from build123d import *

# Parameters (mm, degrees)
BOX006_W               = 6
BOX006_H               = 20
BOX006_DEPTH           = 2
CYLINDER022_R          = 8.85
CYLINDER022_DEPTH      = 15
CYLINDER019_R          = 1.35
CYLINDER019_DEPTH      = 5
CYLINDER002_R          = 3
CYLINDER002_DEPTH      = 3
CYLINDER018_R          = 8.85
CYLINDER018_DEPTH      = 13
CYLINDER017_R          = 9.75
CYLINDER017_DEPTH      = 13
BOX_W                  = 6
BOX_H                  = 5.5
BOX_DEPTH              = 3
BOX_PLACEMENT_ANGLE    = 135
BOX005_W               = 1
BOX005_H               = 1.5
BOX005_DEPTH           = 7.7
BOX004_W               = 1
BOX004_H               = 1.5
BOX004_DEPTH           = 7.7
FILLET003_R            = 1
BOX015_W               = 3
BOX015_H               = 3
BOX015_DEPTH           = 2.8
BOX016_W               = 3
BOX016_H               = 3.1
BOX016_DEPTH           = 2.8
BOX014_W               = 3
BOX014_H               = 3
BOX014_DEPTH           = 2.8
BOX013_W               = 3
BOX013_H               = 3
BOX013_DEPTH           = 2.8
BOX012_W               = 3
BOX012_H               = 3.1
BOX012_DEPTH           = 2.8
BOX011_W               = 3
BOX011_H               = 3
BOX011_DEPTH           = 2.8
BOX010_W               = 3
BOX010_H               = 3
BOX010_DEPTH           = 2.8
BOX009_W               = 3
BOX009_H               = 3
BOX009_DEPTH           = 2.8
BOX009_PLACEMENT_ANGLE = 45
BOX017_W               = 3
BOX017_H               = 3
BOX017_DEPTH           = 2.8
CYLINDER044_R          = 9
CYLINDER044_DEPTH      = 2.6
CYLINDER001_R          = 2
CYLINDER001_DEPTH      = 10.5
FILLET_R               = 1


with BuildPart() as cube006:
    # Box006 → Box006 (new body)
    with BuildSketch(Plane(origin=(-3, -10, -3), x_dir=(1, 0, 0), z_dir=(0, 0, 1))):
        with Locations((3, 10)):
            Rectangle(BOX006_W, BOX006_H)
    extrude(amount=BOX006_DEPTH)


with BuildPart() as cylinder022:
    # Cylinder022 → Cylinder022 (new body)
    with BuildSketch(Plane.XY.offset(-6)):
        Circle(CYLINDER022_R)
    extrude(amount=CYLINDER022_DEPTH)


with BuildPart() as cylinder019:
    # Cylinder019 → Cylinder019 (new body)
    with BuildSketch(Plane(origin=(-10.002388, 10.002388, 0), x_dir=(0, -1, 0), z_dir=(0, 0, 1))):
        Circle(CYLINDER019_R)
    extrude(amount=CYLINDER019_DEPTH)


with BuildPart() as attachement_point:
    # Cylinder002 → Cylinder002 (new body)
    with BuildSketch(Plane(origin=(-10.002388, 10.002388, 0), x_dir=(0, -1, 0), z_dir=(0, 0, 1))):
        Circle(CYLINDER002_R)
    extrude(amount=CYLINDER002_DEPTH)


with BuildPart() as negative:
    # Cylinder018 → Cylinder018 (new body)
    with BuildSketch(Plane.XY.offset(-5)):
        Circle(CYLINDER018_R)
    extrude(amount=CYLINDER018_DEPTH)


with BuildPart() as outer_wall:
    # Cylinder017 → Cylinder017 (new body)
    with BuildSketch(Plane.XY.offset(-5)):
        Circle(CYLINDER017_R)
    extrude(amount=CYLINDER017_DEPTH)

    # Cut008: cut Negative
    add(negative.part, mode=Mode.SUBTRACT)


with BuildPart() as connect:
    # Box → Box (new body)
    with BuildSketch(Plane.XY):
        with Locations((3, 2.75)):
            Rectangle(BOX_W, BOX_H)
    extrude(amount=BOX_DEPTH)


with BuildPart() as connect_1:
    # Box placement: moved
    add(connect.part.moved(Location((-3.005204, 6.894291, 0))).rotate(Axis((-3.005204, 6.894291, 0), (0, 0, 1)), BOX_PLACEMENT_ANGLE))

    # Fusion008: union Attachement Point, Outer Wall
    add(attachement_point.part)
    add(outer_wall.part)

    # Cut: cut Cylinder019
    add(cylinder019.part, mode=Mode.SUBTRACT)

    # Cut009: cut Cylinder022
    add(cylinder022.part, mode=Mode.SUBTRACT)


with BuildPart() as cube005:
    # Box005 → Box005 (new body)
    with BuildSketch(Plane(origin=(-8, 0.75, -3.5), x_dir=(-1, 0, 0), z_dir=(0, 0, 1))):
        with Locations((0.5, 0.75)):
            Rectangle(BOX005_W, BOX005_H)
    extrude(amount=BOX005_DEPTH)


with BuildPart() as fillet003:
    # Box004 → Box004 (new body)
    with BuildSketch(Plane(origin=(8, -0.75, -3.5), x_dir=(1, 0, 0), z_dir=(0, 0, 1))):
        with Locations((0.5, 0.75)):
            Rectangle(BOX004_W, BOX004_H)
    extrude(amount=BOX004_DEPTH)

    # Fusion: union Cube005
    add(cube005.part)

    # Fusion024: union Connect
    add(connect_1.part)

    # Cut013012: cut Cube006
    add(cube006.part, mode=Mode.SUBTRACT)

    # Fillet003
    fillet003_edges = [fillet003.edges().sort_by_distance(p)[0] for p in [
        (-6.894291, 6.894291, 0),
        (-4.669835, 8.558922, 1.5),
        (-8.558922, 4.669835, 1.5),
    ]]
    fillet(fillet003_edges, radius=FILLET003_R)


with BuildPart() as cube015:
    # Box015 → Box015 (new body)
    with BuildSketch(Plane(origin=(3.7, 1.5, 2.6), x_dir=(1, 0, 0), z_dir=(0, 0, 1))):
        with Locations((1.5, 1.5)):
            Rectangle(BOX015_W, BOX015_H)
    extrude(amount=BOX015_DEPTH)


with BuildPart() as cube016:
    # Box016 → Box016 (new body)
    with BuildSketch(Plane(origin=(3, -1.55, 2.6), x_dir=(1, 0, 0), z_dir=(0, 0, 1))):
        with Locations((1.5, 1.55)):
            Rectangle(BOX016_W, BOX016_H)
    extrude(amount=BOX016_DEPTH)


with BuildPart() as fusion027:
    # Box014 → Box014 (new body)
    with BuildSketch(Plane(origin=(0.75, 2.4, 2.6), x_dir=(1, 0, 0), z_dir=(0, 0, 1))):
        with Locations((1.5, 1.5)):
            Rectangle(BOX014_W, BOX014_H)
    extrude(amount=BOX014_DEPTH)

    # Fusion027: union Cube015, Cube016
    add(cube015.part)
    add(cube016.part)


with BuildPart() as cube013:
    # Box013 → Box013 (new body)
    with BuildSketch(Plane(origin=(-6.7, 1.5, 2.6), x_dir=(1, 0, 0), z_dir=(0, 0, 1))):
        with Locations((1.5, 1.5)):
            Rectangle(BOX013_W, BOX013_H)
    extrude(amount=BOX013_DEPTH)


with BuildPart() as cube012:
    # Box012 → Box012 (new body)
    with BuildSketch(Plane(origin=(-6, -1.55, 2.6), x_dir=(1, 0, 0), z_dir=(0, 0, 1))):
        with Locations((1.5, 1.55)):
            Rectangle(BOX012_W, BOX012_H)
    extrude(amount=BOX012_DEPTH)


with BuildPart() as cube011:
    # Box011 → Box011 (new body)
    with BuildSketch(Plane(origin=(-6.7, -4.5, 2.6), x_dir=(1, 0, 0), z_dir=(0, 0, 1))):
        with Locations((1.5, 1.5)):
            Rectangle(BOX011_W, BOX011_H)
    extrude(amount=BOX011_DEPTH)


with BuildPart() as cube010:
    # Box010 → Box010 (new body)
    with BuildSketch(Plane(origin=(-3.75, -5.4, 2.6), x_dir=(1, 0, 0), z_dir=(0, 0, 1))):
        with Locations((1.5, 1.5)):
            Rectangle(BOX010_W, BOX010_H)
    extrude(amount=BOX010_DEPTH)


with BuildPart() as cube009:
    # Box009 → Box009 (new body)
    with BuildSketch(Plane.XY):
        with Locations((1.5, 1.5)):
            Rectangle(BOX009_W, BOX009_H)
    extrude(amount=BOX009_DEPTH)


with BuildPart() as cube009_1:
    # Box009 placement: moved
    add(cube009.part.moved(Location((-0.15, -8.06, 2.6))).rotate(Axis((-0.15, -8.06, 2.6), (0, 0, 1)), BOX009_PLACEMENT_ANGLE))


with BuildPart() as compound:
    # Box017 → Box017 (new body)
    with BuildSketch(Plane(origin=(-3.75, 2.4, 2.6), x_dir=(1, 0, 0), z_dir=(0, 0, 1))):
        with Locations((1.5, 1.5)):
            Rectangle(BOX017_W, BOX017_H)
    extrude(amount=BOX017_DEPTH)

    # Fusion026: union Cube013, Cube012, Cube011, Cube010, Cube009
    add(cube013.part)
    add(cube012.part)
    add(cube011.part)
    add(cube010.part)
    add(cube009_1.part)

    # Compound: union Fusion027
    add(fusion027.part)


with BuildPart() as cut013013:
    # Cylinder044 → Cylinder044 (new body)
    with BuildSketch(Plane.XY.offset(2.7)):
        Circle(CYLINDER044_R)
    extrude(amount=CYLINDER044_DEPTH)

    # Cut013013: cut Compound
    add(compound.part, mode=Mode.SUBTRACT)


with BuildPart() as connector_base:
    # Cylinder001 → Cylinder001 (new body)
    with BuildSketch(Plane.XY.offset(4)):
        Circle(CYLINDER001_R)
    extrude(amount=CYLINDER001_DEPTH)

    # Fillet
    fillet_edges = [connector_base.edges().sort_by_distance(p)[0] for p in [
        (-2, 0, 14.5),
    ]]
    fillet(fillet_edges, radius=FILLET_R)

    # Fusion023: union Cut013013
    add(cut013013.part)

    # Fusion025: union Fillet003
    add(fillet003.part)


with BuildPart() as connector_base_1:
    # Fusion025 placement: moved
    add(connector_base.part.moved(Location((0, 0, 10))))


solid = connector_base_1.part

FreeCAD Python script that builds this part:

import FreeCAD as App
import Part
import Sketcher


def edges_at(feature, points):
    """Names of the edges that pass closest to the given points."""
    edges = feature.Shape.Edges
    near = lambda p: min(range(len(edges)), key=lambda i: edges[i].distToShape(Part.Vertex(*p))[0])
    return sorted({f"Edge{near(p) + 1}" for p in points})

doc = App.newDocument("Part")
body = doc.addObject("PartDesign::Body", "Body")

# Sketch on XY plane
sketch1 = body.newObject("Sketcher::SketchObject", "Sketch")
sketch1.AttachmentSupport = (doc.getObject("XY_Plane"), [""])
sketch1.MapMode = "FlatFace"
sketch1.AttachmentOffset = App.Placement(App.Vector(0, 0, -3), App.Rotation())
sketch1.addGeometry([
    Part.LineSegment(App.Vector(-3, 10, 0), App.Vector(-3, -10, 0)),
    Part.LineSegment(App.Vector(-3, -10, 0), App.Vector(3, -10, 0)),
    Part.LineSegment(App.Vector(3, -10, 0), App.Vector(3, 10, 0)),
    Part.LineSegment(App.Vector(3, 10, 0), App.Vector(-3, 10, 0)),
], False)
sketch1.addConstraint([
    Sketcher.Constraint("Coincident", 0, 2, 1, 1),
    Sketcher.Constraint("Coincident", 1, 2, 2, 1),
    Sketcher.Constraint("Coincident", 2, 2, 3, 1),
    Sketcher.Constraint("Coincident", 3, 2, 0, 1),
    Sketcher.Constraint("Vertical", 0),
    Sketcher.Constraint("Horizontal", 1),
    Sketcher.Constraint("Vertical", 2),
    Sketcher.Constraint("Horizontal", 3),
    Sketcher.Constraint("Symmetric", 0, 2, 2, 2, -1, 1),
    Sketcher.Constraint("DistanceX", 1, 1, 1, 2, 6.0),
    Sketcher.Constraint("DistanceY", 0, 2, 0, 1, 20.0),
])
pad1 = body.newObject("PartDesign::Pad", "Pad")
pad1.Profile = sketch1
pad1.Length = 2
body2 = doc.addObject("PartDesign::Body", "Body001")

# Sketch on XY plane
sketch2 = body2.newObject("Sketcher::SketchObject", "Sketch001")
sketch2.AttachmentSupport = (doc.getObject("XY_Plane001"), [""])
sketch2.MapMode = "FlatFace"
sketch2.AttachmentOffset = App.Placement(App.Vector(0, 0, -6), App.Rotation())
sketch2.addGeometry(Part.Circle(App.Vector(0, 0, 0), App.Vector(0, 0, 1), 9), False)
sketch2.addConstraint([
    Sketcher.Constraint("Coincident", 0, 3, -1, 1),
    Sketcher.Constraint("Diameter", 0, 17.7),
])
pad2 = body2.newObject("PartDesign::Pad", "Pad001")
pad2.Profile = sketch2
pad2.Length = 15
body3 = doc.addObject("PartDesign::Body", "Body002")

# Sketch on XY plane
sketch3 = body3.newObject("Sketcher::SketchObject", "Sketch002")
sketch3.AttachmentSupport = (doc.getObject("XY_Plane002"), [""])
sketch3.MapMode = "FlatFace"
sketch3.addGeometry(Part.Circle(App.Vector(-10, 10, 0), App.Vector(0, 0, 1), 1.4), False)
sketch3.addConstraint([
    Sketcher.Constraint("Diameter", 0, 2.7),
    Sketcher.Constraint("DistanceX", 0, 3, -1, 1, 10.002388),
    Sketcher.Constraint("DistanceY", -1, 1, 0, 3, 10.002388),
])
pad3 = body3.newObject("PartDesign::Pad", "Pad002")
pad3.Profile = sketch3
pad3.Length = 5
body4 = doc.addObject("PartDesign::Body", "Body003")

# Sketch on XY plane
sketch4 = body4.newObject("Sketcher::SketchObject", "Sketch003")
sketch4.AttachmentSupport = (doc.getObject("XY_Plane003"), [""])
sketch4.MapMode = "FlatFace"
sketch4.addGeometry(Part.Circle(App.Vector(-10, 10, 0), App.Vector(0, 0, 1), 3), False)
sketch4.addConstraint([
    Sketcher.Constraint("Diameter", 0, 6.0),
    Sketcher.Constraint("DistanceX", 0, 3, -1, 1, 10.002388),
    Sketcher.Constraint("DistanceY", -1, 1, 0, 3, 10.002388),
])
pad4 = body4.newObject("PartDesign::Pad", "Pad003")
pad4.Profile = sketch4
pad4.Length = 3
body5 = doc.addObject("PartDesign::Body", "Body004")

# Sketch on XY plane
sketch5 = body5.newObject("Sketcher::SketchObject", "Sketch004")
sketch5.AttachmentSupport = (doc.getObject("XY_Plane004"), [""])
sketch5.MapMode = "FlatFace"
sketch5.AttachmentOffset = App.Placement(App.Vector(0, 0, -5), App.Rotation())
sketch5.addGeometry(Part.Circle(App.Vector(0, 0, 0), App.Vector(0, 0, 1), 9), False)
sketch5.addConstraint([
    Sketcher.Constraint("Coincident", 0, 3, -1, 1),
    Sketcher.Constraint("Diameter", 0, 17.7),
])
pad5 = body5.newObject("PartDesign::Pad", "Pad004")
pad5.Profile = sketch5
pad5.Length = 13
body6 = doc.addObject("PartDesign::Body", "Body005")

# Sketch on XY plane
sketch6 = body6.newObject("Sketcher::SketchObject", "Sketch005")
sketch6.AttachmentSupport = (doc.getObject("XY_Plane005"), [""])
sketch6.MapMode = "FlatFace"
sketch6.AttachmentOffset = App.Placement(App.Vector(0, 0, -5), App.Rotation())
sketch6.addGeometry(Part.Circle(App.Vector(0, 0, 0), App.Vector(0, 0, 1), 10), False)
sketch6.addConstraint([
    Sketcher.Constraint("Coincident", 0, 3, -1, 1),
    Sketcher.Constraint("Diameter", 0, 19.5),
])
pad6 = body6.newObject("PartDesign::Pad", "Pad005")
pad6.Profile = sketch6
pad6.Length = 13
doc.recompute()

boolean = body6.newObject("PartDesign::Boolean", "Boolean")
boolean.Type = "Cut"
boolean.addObjects([body5])
body7 = doc.addObject("PartDesign::Body", "Body006")

# Sketch on XY plane
sketch7 = body7.newObject("Sketcher::SketchObject", "Sketch006")
sketch7.AttachmentSupport = (doc.getObject("XY_Plane006"), [""])
sketch7.MapMode = "FlatFace"
sketch7.addGeometry([
    Part.LineSegment(App.Vector(0, 6, 0), App.Vector(0, 0, 0)),
    Part.LineSegment(App.Vector(0, 0, 0), App.Vector(6, 0, 0)),
    Part.LineSegment(App.Vector(6, 0, 0), App.Vector(6, 6, 0)),
    Part.LineSegment(App.Vector(6, 6, 0), App.Vector(0, 6, 0)),
], False)
sketch7.addConstraint([
    Sketcher.Constraint("Coincident", 0, 2, 1, 1),
    Sketcher.Constraint("Coincident", 1, 2, 2, 1),
    Sketcher.Constraint("Coincident", 2, 2, 3, 1),
    Sketcher.Constraint("Coincident", 3, 2, 0, 1),
    Sketcher.Constraint("Vertical", 0),
    Sketcher.Constraint("Horizontal", 1),
    Sketcher.Constraint("Vertical", 2),
    Sketcher.Constraint("Horizontal", 3),
    Sketcher.Constraint("Coincident", 0, 2, -1, 1),
    Sketcher.Constraint("DistanceX", 1, 1, 1, 2, 6.0),
    Sketcher.Constraint("DistanceY", 0, 2, 0, 1, 5.5),
])
pad7 = body7.newObject("PartDesign::Pad", "Pad006")
pad7.Profile = sketch7
pad7.Length = 3
body8 = doc.addObject("PartDesign::Body", "Body007")
doc.recompute()

body7.Placement = App.Placement(App.Vector(-3.005204, 6.894291, 0), App.Rotation(App.Vector(0, 0, 1), 135))
boolean2 = body8.newObject("PartDesign::Boolean", "Boolean001")
boolean2.Type = "Fuse"
boolean2.addObjects([body7])
doc.recompute()

boolean3 = body8.newObject("PartDesign::Boolean", "Boolean002")
boolean3.Type = "Fuse"
boolean3.addObjects([body4])
doc.recompute()

boolean4 = body8.newObject("PartDesign::Boolean", "Boolean003")
boolean4.Type = "Fuse"
boolean4.addObjects([body6])
doc.recompute()

boolean5 = body8.newObject("PartDesign::Boolean", "Boolean004")
boolean5.Type = "Cut"
boolean5.addObjects([body3])
doc.recompute()

boolean6 = body8.newObject("PartDesign::Boolean", "Boolean005")
boolean6.Type = "Cut"
boolean6.addObjects([body2])
body9 = doc.addObject("PartDesign::Body", "Body008")

# Sketch on XY plane
sketch8 = body9.newObject("Sketcher::SketchObject", "Sketch007")
sketch8.AttachmentSupport = (doc.getObject("XY_Plane008"), [""])
sketch8.MapMode = "FlatFace"
sketch8.AttachmentOffset = App.Placement(App.Vector(0, 0, -3.5), App.Rotation())
sketch8.addGeometry([
    Part.LineSegment(App.Vector(-8, -0.8, 0), App.Vector(-8, 0.8, 0)),
    Part.LineSegment(App.Vector(-8, 0.8, 0), App.Vector(-9, 0.8, 0)),
    Part.LineSegment(App.Vector(-9, 0.8, 0), App.Vector(-9, -0.8, 0)),
    Part.LineSegment(App.Vector(-9, -0.8, 0), App.Vector(-8, -0.8, 0)),
], False)
sketch8.addConstraint([
    Sketcher.Constraint("Coincident", 0, 2, 1, 1),
    Sketcher.Constraint("Coincident", 1, 2, 2, 1),
    Sketcher.Constraint("Coincident", 2, 2, 3, 1),
    Sketcher.Constraint("Coincident", 3, 2, 0, 1),
    Sketcher.Constraint("Vertical", 0),
    Sketcher.Constraint("Horizontal", 1),
    Sketcher.Constraint("Vertical", 2),
    Sketcher.Constraint("Horizontal", 3),
    Sketcher.Constraint("DistanceX", 1, 2, 1, 1, 1.0),
    Sketcher.Constraint("DistanceY", 0, 1, 0, 2, 1.5),
    Sketcher.Constraint("DistanceX", 0, 2, -1, 1, 8.0),
    Sketcher.Constraint("DistanceY", -1, 1, 0, 2, 0.75),
])
pad8 = body9.newObject("PartDesign::Pad", "Pad007")
pad8.Profile = sketch8
pad8.Length = 7.7
body10 = doc.addObject("PartDesign::Body", "Body009")
body10.AllowCompound = True

# Sketch on XY plane
sketch9 = body10.newObject("Sketcher::SketchObject", "Sketch008")
sketch9.AttachmentSupport = (doc.getObject("XY_Plane009"), [""])
sketch9.MapMode = "FlatFace"
sketch9.AttachmentOffset = App.Placement(App.Vector(0, 0, -3.5), App.Rotation())
sketch9.addGeometry([
    Part.LineSegment(App.Vector(8, 0.8, 0), App.Vector(8, -0.8, 0)),
    Part.LineSegment(App.Vector(8, -0.8, 0), App.Vector(9, -0.8, 0)),
    Part.LineSegment(App.Vector(9, -0.8, 0), App.Vector(9, 0.8, 0)),
    Part.LineSegment(App.Vector(9, 0.8, 0), App.Vector(8, 0.8, 0)),
], False)
sketch9.addConstraint([
    Sketcher.Constraint("Coincident", 0, 2, 1, 1),
    Sketcher.Constraint("Coincident", 1, 2, 2, 1),
    Sketcher.Constraint("Coincident", 2, 2, 3, 1),
    Sketcher.Constraint("Coincident", 3, 2, 0, 1),
    Sketcher.Constraint("Vertical", 0),
    Sketcher.Constraint("Horizontal", 1),
    Sketcher.Constraint("Vertical", 2),
    Sketcher.Constraint("Horizontal", 3),
    Sketcher.Constraint("DistanceX", 1, 1, 1, 2, 1.0),
    Sketcher.Constraint("DistanceY", 0, 2, 0, 1, 1.5),
    Sketcher.Constraint("DistanceX", -1, 1, 0, 2, 8.0),
    Sketcher.Constraint("DistanceY", 0, 2, -1, 1, 0.75),
])
pad9 = body10.newObject("PartDesign::Pad", "Pad008")
pad9.Profile = sketch9
pad9.Length = 7.7
doc.recompute()

boolean7 = body10.newObject("PartDesign::Boolean", "Boolean006")
boolean7.Type = "Fuse"
boolean7.addObjects([body9])
doc.recompute()

boolean8 = body10.newObject("PartDesign::Boolean", "Boolean007")
boolean8.Type = "Fuse"
boolean8.addObjects([body8])
doc.recompute()

boolean9 = body10.newObject("PartDesign::Boolean", "Boolean008")
boolean9.Type = "Cut"
boolean9.addObjects([body])
doc.recompute()

fillet = body10.newObject("PartDesign::Fillet", "Fillet")
fillet.Base = (boolean9, edges_at(boolean9, [(-6.894, 6.894, 0), (-4.67, 8.559, 1.5), (-8.559, 4.67, 1.5)]))
fillet.Radius = 1
body11 = doc.addObject("PartDesign::Body", "Body010")

# Sketch on XY plane
sketch10 = body11.newObject("Sketcher::SketchObject", "Sketch009")
sketch10.AttachmentSupport = (doc.getObject("XY_Plane010"), [""])
sketch10.MapMode = "FlatFace"
sketch10.AttachmentOffset = App.Placement(App.Vector(0, 0, 2.6), App.Rotation())
sketch10.addGeometry([
    Part.LineSegment(App.Vector(3.7, 4.5, 0), App.Vector(3.7, 1.5, 0)),
    Part.LineSegment(App.Vector(3.7, 1.5, 0), App.Vector(6.7, 1.5, 0)),
    Part.LineSegment(App.Vector(6.7, 1.5, 0), App.Vector(6.7, 4.5, 0)),
    Part.LineSegment(App.Vector(6.7, 4.5, 0), App.Vector(3.7, 4.5, 0)),
], False)
sketch10.addConstraint([
    Sketcher.Constraint("Coincident", 0, 2, 1, 1),
    Sketcher.Constraint("Coincident", 1, 2, 2, 1),
    Sketcher.Constraint("Coincident", 2, 2, 3, 1),
    Sketcher.Constraint("Coincident", 3, 2, 0, 1),
    Sketcher.Constraint("Vertical", 0),
    Sketcher.Constraint("Horizontal", 1),
    Sketcher.Constraint("Vertical", 2),
    Sketcher.Constraint("Horizontal", 3),
    Sketcher.Constraint("Equal", 3, 0),
    Sketcher.Constraint("DistanceX", 1, 1, 1, 2, 3.0),
    Sketcher.Constraint("DistanceX", -1, 1, 0, 2, 3.7),
    Sketcher.Constraint("DistanceY", -1, 1, 0, 2, 1.5),
])
pad10 = body11.newObject("PartDesign::Pad", "Pad009")
pad10.Profile = sketch10
pad10.Length = 2.8
body12 = doc.addObject("PartDesign::Body", "Body011")

# Sketch on XY plane
sketch11 = body12.newObject("Sketcher::SketchObject", "Sketch010")
sketch11.AttachmentSupport = (doc.getObject("XY_Plane011"), [""])
sketch11.MapMode = "FlatFace"
sketch11.AttachmentOffset = App.Placement(App.Vector(0, 0, 2.6), App.Rotation())
sketch11.addGeometry([
    Part.LineSegment(App.Vector(3, 1.6, 0), App.Vector(3, -1.6, 0)),
    Part.LineSegment(App.Vector(3, -1.6, 0), App.Vector(6, -1.6, 0)),
    Part.LineSegment(App.Vector(6, -1.6, 0), App.Vector(6, 1.6, 0)),
    Part.LineSegment(App.Vector(6, 1.6, 0), App.Vector(3, 1.6, 0)),
], False)
sketch11.addConstraint([
    Sketcher.Constraint("Coincident", 0, 2, 1, 1),
    Sketcher.Constraint("Coincident", 1, 2, 2, 1),
    Sketcher.Constraint("Coincident", 2, 2, 3, 1),
    Sketcher.Constraint("Coincident", 3, 2, 0, 1),
    Sketcher.Constraint("Vertical", 0),
    Sketcher.Constraint("Horizontal", 1),
    Sketcher.Constraint("Vertical", 2),
    Sketcher.Constraint("Horizontal", 3),
    Sketcher.Constraint("DistanceX", 1, 1, 1, 2, 3.0),
    Sketcher.Constraint("DistanceY", 0, 2, 0, 1, 3.1),
    Sketcher.Constraint("DistanceX", -1, 1, 0, 2, 3.0),
    Sketcher.Constraint("DistanceY", 0, 2, -1, 1, 1.55),
])
pad11 = body12.newObject("PartDesign::Pad", "Pad010")
pad11.Profile = sketch11
pad11.Length = 2.8
body13 = doc.addObject("PartDesign::Body", "Body012")

# Sketch on XY plane
sketch12 = body13.newObject("Sketcher::SketchObject", "Sketch011")
sketch12.AttachmentSupport = (doc.getObject("XY_Plane012"), [""])
sketch12.MapMode = "FlatFace"
sketch12.AttachmentOffset = App.Placement(App.Vector(0, 0, 2.6), App.Rotation())
sketch12.addGeometry([
    Part.LineSegment(App.Vector(0.8, 5.4, 0), App.Vector(0.8, 2.4, 0)),
    Part.LineSegment(App.Vector(0.8, 2.4, 0), App.Vector(3.8, 2.4, 0)),
    Part.LineSegment(App.Vector(3.8, 2.4, 0), App.Vector(3.8, 5.4, 0)),
    Part.LineSegment(App.Vector(3.8, 5.4, 0), App.Vector(0.8, 5.4, 0)),
], False)
sketch12.addConstraint([
    Sketcher.Constraint("Coincident", 0, 2, 1, 1),
    Sketcher.Constraint("Coincident", 1, 2, 2, 1),
    Sketcher.Constraint("Coincident", 2, 2, 3, 1),
    Sketcher.Constraint("Coincident", 3, 2, 0, 1),
    Sketcher.Constraint("Vertical", 0),
    Sketcher.Constraint("Horizontal", 1),
    Sketcher.Constraint("Vertical", 2),
    Sketcher.Constraint("Horizontal", 3),
    Sketcher.Constraint("Equal", 3, 0),
    Sketcher.Constraint("DistanceX", 1, 1, 1, 2, 3.0),
    Sketcher.Constraint("DistanceY", -1, 1, 0, 2, 2.4),
    Sketcher.Constraint("DistanceX", -1, 1, 0, 2, 0.75),
])
pad12 = body13.newObject("PartDesign::Pad", "Pad011")
pad12.Profile = sketch12
pad12.Length = 2.8
doc.recompute()

boolean10 = body13.newObject("PartDesign::Boolean", "Boolean009")
boolean10.Type = "Fuse"
boolean10.addObjects([body11])
doc.recompute()

boolean11 = body13.newObject("PartDesign::Boolean", "Boolean010")
boolean11.Type = "Fuse"
boolean11.addObjects([body12])
body14 = doc.addObject("PartDesign::Body", "Body013")

# Sketch on XY plane
sketch13 = body14.newObject("Sketcher::SketchObject", "Sketch012")
sketch13.AttachmentSupport = (doc.getObject("XY_Plane013"), [""])
sketch13.MapMode = "FlatFace"
sketch13.AttachmentOffset = App.Placement(App.Vector(0, 0, 2.6), App.Rotation())
sketch13.addGeometry([
    Part.LineSegment(App.Vector(-6.7, 4.5, 0), App.Vector(-6.7, 1.5, 0)),
    Part.LineSegment(App.Vector(-6.7, 1.5, 0), App.Vector(-3.7, 1.5, 0)),
    Part.LineSegment(App.Vector(-3.7, 1.5, 0), App.Vector(-3.7, 4.5, 0)),
    Part.LineSegment(App.Vector(-3.7, 4.5, 0), App.Vector(-6.7, 4.5, 0)),
], False)
sketch13.addConstraint([
    Sketcher.Constraint("Coincident", 0, 2, 1, 1),
    Sketcher.Constraint("Coincident", 1, 2, 2, 1),
    Sketcher.Constraint("Coincident", 2, 2, 3, 1),
    Sketcher.Constraint("Coincident", 3, 2, 0, 1),
    Sketcher.Constraint("Vertical", 0),
    Sketcher.Constraint("Horizontal", 1),
    Sketcher.Constraint("Vertical", 2),
    Sketcher.Constraint("Horizontal", 3),
    Sketcher.Constraint("Equal", 3, 0),
    Sketcher.Constraint("DistanceX", 1, 1, 1, 2, 3.0),
    Sketcher.Constraint("DistanceX", 0, 2, -1, 1, 6.7),
    Sketcher.Constraint("DistanceY", -1, 1, 0, 2, 1.5),
])
pad13 = body14.newObject("PartDesign::Pad", "Pad012")
pad13.Profile = sketch13
pad13.Length = 2.8
body15 = doc.addObject("PartDesign::Body", "Body014")

# Sketch on XY plane
sketch14 = body15.newObject("Sketcher::SketchObject", "Sketch013")
sketch14.AttachmentSupport = (doc.getObject("XY_Plane014"), [""])
sketch14.MapMode = "FlatFace"
sketch14.AttachmentOffset = App.Placement(App.Vector(0, 0, 2.6), App.Rotation())
sketch14.addGeometry([
    Part.LineSegment(App.Vector(-6, 1.6, 0), App.Vector(-6, -1.6, 0)),
    Part.LineSegment(App.Vector(-6, -1.6, 0), App.Vector(-3, -1.6, 0)),
    Part.LineSegment(App.Vector(-3, -1.6, 0), App.Vector(-3, 1.6, 0)),
    Part.LineSegment(App.Vector(-3, 1.6, 0), App.Vector(-6, 1.6, 0)),
], False)
sketch14.addConstraint([
    Sketcher.Constraint("Coincident", 0, 2, 1, 1),
    Sketcher.Constraint("Coincident", 1, 2, 2, 1),
    Sketcher.Constraint("Coincident", 2, 2, 3, 1),
    Sketcher.Constraint("Coincident", 3, 2, 0, 1),
    Sketcher.Constraint("Vertical", 0),
    Sketcher.Constraint("Horizontal", 1),
    Sketcher.Constraint("Vertical", 2),
    Sketcher.Constraint("Horizontal", 3),
    Sketcher.Constraint("DistanceX", 1, 1, 1, 2, 3.0),
    Sketcher.Constraint("DistanceY", 0, 2, 0, 1, 3.1),
    Sketcher.Constraint("DistanceX", 0, 2, -1, 1, 6.0),
    Sketcher.Constraint("DistanceY", 0, 2, -1, 1, 1.55),
])
pad14 = body15.newObject("PartDesign::Pad", "Pad013")
pad14.Profile = sketch14
pad14.Length = 2.8
body16 = doc.addObject("PartDesign::Body", "Body015")

# Sketch on XY plane
sketch15 = body16.newObject("Sketcher::SketchObject", "Sketch014")
sketch15.AttachmentSupport = (doc.getObject("XY_Plane015"), [""])
sketch15.MapMode = "FlatFace"
sketch15.AttachmentOffset = App.Placement(App.Vector(0, 0, 2.6), App.Rotation())
sketch15.addGeometry([
    Part.LineSegment(App.Vector(-6.7, -1.5, 0), App.Vector(-6.7, -4.5, 0)),
    Part.LineSegment(App.Vector(-6.7, -4.5, 0), App.Vector(-3.7, -4.5, 0)),
    Part.LineSegment(App.Vector(-3.7, -4.5, 0), App.Vector(-3.7, -1.5, 0)),
    Part.LineSegment(App.Vector(-3.7, -1.5, 0), App.Vector(-6.7, -1.5, 0)),
], False)
sketch15.addConstraint([
    Sketcher.Constraint("Coincident", 0, 2, 1, 1),
    Sketcher.Constraint("Coincident", 1, 2, 2, 1),
    Sketcher.Constraint("Coincident", 2, 2, 3, 1),
    Sketcher.Constraint("Coincident", 3, 2, 0, 1),
    Sketcher.Constraint("Vertical", 0),
    Sketcher.Constraint("Horizontal", 1),
    Sketcher.Constraint("Vertical", 2),
    Sketcher.Constraint("Horizontal", 3),
    Sketcher.Constraint("Equal", 3, 0),
    Sketcher.Constraint("DistanceX", 1, 1, 1, 2, 3.0),
    Sketcher.Constraint("DistanceX", 0, 2, -1, 1, 6.7),
    Sketcher.Constraint("DistanceY", 0, 2, -1, 1, 4.5),
])
pad15 = body16.newObject("PartDesign::Pad", "Pad014")
pad15.Profile = sketch15
pad15.Length = 2.8
body17 = doc.addObject("PartDesign::Body", "Body016")

# Sketch on XY plane
sketch16 = body17.newObject("Sketcher::SketchObject", "Sketch015")
sketch16.AttachmentSupport = (doc.getObject("XY_Plane016"), [""])
sketch16.MapMode = "FlatFace"
sketch16.AttachmentOffset = App.Placement(App.Vector(0, 0, 2.6), App.Rotation())
sketch16.addGeometry([
    Part.LineSegment(App.Vector(-3.8, -2.4, 0), App.Vector(-3.8, -5.4, 0)),
    Part.LineSegment(App.Vector(-3.8, -5.4, 0), App.Vector(-0.8, -5.4, 0)),
    Part.LineSegment(App.Vector(-0.8, -5.4, 0), App.Vector(-0.8, -2.4, 0)),
    Part.LineSegment(App.Vector(-0.8, -2.4, 0), App.Vector(-3.8, -2.4, 0)),
], False)
sketch16.addConstraint([
    Sketcher.Constraint("Coincident", 0, 2, 1, 1),
    Sketcher.Constraint("Coincident", 1, 2, 2, 1),
    Sketcher.Constraint("Coincident", 2, 2, 3, 1),
    Sketcher.Constraint("Coincident", 3, 2, 0, 1),
    Sketcher.Constraint("Vertical", 0),
    Sketcher.Constraint("Horizontal", 1),
    Sketcher.Constraint("Vertical", 2),
    Sketcher.Constraint("Horizontal", 3),
    Sketcher.Constraint("Equal", 3, 0),
    Sketcher.Constraint("DistanceX", 1, 1, 1, 2, 3.0),
    Sketcher.Constraint("DistanceY", 0, 2, -1, 1, 5.4),
    Sketcher.Constraint("DistanceX", 0, 2, -1, 1, 3.75),
])
pad16 = body17.newObject("PartDesign::Pad", "Pad015")
pad16.Profile = sketch16
pad16.Length = 2.8
body18 = doc.addObject("PartDesign::Body", "Body017")

# Sketch on XY plane
sketch17 = body18.newObject("Sketcher::SketchObject", "Sketch016")
sketch17.AttachmentSupport = (doc.getObject("XY_Plane017"), [""])
sketch17.MapMode = "FlatFace"
sketch17.addGeometry([
    Part.LineSegment(App.Vector(0, 3, 0), App.Vector(0, 0, 0)),
    Part.LineSegment(App.Vector(0, 0, 0), App.Vector(3, 0, 0)),
    Part.LineSegment(App.Vector(3, 0, 0), App.Vector(3, 3, 0)),
    Part.LineSegment(App.Vector(3, 3, 0), App.Vector(0, 3, 0)),
], False)
sketch17.addConstraint([
    Sketcher.Constraint("Coincident", 0, 2, 1, 1),
    Sketcher.Constraint("Coincident", 1, 2, 2, 1),
    Sketcher.Constraint("Coincident", 2, 2, 3, 1),
    Sketcher.Constraint("Coincident", 3, 2, 0, 1),
    Sketcher.Constraint("Vertical", 0),
    Sketcher.Constraint("Horizontal", 1),
    Sketcher.Constraint("Vertical", 2),
    Sketcher.Constraint("Horizontal", 3),
    Sketcher.Constraint("Coincident", 0, 2, -1, 1),
    Sketcher.Constraint("Equal", 3, 0),
    Sketcher.Constraint("DistanceX", 1, 1, 1, 2, 3.0),
])
pad17 = body18.newObject("PartDesign::Pad", "Pad016")
pad17.Profile = sketch17
pad17.Length = 2.8
body19 = doc.addObject("PartDesign::Body", "Body018")
doc.recompute()

body18.Placement = App.Placement(App.Vector(-0.15, -8.06, 2.6), App.Rotation(App.Vector(0, 0, 1), 45))
boolean12 = body19.newObject("PartDesign::Boolean", "Boolean011")
boolean12.Type = "Fuse"
boolean12.addObjects([body18])
body20 = doc.addObject("PartDesign::Body", "Body019")
body20.AllowCompound = True

# Sketch on XY plane
sketch18 = body20.newObject("Sketcher::SketchObject", "Sketch017")
sketch18.AttachmentSupport = (doc.getObject("XY_Plane019"), [""])
sketch18.MapMode = "FlatFace"
sketch18.AttachmentOffset = App.Placement(App.Vector(0, 0, 2.6), App.Rotation())
sketch18.addGeometry([
    Part.LineSegment(App.Vector(-3.8, 5.4, 0), App.Vector(-3.8, 2.4, 0)),
    Part.LineSegment(App.Vector(-3.8, 2.4, 0), App.Vector(-0.8, 2.4, 0)),
    Part.LineSegment(App.Vector(-0.8, 2.4, 0), App.Vector(-0.8, 5.4, 0)),
    Part.LineSegment(App.Vector(-0.8, 5.4, 0), App.Vector(-3.8, 5.4, 0)),
], False)
sketch18.addConstraint([
    Sketcher.Constraint("Coincident", 0, 2, 1, 1),
    Sketcher.Constraint("Coincident", 1, 2, 2, 1),
    Sketcher.Constraint("Coincident", 2, 2, 3, 1),
    Sketcher.Constraint("Coincident", 3, 2, 0, 1),
    Sketcher.Constraint("Vertical", 0),
    Sketcher.Constraint("Horizontal", 1),
    Sketcher.Constraint("Vertical", 2),
    Sketcher.Constraint("Horizontal", 3),
    Sketcher.Constraint("Equal", 3, 0),
    Sketcher.Constraint("DistanceX", 1, 1, 1, 2, 3.0),
    Sketcher.Constraint("DistanceY", -1, 1, 0, 2, 2.4),
    Sketcher.Constraint("DistanceX", 0, 2, -1, 1, 3.75),
])
pad18 = body20.newObject("PartDesign::Pad", "Pad017")
pad18.Profile = sketch18
pad18.Length = 2.8
doc.recompute()

boolean13 = body20.newObject("PartDesign::Boolean", "Boolean012")
boolean13.Type = "Fuse"
boolean13.addObjects([body14])
doc.recompute()

boolean14 = body20.newObject("PartDesign::Boolean", "Boolean013")
boolean14.Type = "Fuse"
boolean14.addObjects([body15])
doc.recompute()

boolean15 = body20.newObject("PartDesign::Boolean", "Boolean014")
boolean15.Type = "Fuse"
boolean15.addObjects([body16])
doc.recompute()

boolean16 = body20.newObject("PartDesign::Boolean", "Boolean015")
boolean16.Type = "Fuse"
boolean16.addObjects([body17])
doc.recompute()

boolean17 = body20.newObject("PartDesign::Boolean", "Boolean016")
boolean17.Type = "Fuse"
boolean17.addObjects([body19])
doc.recompute()

boolean18 = body20.newObject("PartDesign::Boolean", "Boolean017")
boolean18.Type = "Fuse"
boolean18.addObjects([body13])
body21 = doc.addObject("PartDesign::Body", "Body020")

# Sketch on XY plane
sketch19 = body21.newObject("Sketcher::SketchObject", "Sketch018")
sketch19.AttachmentSupport = (doc.getObject("XY_Plane020"), [""])
sketch19.MapMode = "FlatFace"
sketch19.AttachmentOffset = App.Placement(App.Vector(0, 0, 2.7), App.Rotation())
sketch19.addGeometry(Part.Circle(App.Vector(0, 0, 0), App.Vector(0, 0, 1), 9), False)
sketch19.addConstraint([
    Sketcher.Constraint("Coincident", 0, 3, -1, 1),
    Sketcher.Constraint("Diameter", 0, 18.0),
])
pad19 = body21.newObject("PartDesign::Pad", "Pad018")
pad19.Profile = sketch19
pad19.Length = 2.6
doc.recompute()

boolean19 = body21.newObject("PartDesign::Boolean", "Boolean018")
boolean19.Type = "Cut"
boolean19.addObjects([body20])
body22 = doc.addObject("PartDesign::Body", "Body021")

# Sketch on XY plane
sketch20 = body22.newObject("Sketcher::SketchObject", "Sketch019")
sketch20.AttachmentSupport = (doc.getObject("XY_Plane021"), [""])
sketch20.MapMode = "FlatFace"
sketch20.AttachmentOffset = App.Placement(App.Vector(0, 0, 4), App.Rotation())
sketch20.addGeometry(Part.Circle(App.Vector(0, 0, 0), App.Vector(0, 0, 1), 2), False)
sketch20.addConstraint([
    Sketcher.Constraint("Coincident", 0, 3, -1, 1),
    Sketcher.Constraint("Diameter", 0, 4.0),
])
pad20 = body22.newObject("PartDesign::Pad", "Pad019")
pad20.Profile = sketch20
pad20.Length = 10.5
doc.recompute()

fillet2 = body22.newObject("PartDesign::Fillet", "Fillet001")
fillet2.Base = (pad20, edges_at(pad20, [(-2, 0, 14.5)]))
fillet2.Radius = 1
doc.recompute()

boolean20 = body22.newObject("PartDesign::Boolean", "Boolean019")
boolean20.Type = "Fuse"
boolean20.addObjects([body21])
doc.recompute()

boolean21 = body22.newObject("PartDesign::Boolean", "Boolean020")
boolean21.Type = "Fuse"
boolean21.addObjects([body10])
body23 = doc.addObject("PartDesign::Body", "Body022")
doc.recompute()

body22.Placement = App.Placement(App.Vector(0, 0, 10), App.Rotation(App.Vector(0, 0, 1), 0))
boolean22 = body23.newObject("PartDesign::Boolean", "Boolean021")
boolean22.Type = "Fuse"
boolean22.addObjects([body22])

doc.recompute()
